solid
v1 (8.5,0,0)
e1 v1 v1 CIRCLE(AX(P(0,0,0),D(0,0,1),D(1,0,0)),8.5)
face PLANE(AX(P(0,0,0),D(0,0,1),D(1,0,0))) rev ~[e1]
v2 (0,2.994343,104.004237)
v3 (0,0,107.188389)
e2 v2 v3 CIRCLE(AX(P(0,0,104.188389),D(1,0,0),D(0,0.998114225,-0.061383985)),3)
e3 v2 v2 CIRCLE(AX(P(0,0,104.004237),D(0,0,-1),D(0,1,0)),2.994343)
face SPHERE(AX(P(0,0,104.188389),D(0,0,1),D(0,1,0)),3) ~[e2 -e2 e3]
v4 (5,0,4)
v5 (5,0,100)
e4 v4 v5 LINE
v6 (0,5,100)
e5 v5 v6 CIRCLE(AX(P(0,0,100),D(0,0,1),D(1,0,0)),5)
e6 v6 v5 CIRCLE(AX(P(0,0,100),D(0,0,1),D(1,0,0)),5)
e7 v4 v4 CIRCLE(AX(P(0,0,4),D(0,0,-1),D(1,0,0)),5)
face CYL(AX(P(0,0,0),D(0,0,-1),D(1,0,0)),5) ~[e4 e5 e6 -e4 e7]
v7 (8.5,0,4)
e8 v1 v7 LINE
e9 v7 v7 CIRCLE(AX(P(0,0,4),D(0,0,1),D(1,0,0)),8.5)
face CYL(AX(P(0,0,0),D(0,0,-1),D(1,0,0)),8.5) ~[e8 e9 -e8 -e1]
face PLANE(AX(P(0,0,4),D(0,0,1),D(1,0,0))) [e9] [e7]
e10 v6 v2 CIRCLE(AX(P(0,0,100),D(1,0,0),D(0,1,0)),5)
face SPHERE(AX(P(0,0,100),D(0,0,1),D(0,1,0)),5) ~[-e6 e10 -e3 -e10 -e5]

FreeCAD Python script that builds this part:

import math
import FreeCAD as App
import Part
import Sketcher
from FreeCAD import Vector
Q = App.Units.Quantity

doc = App.newDocument("Part")
body = doc.addObject("PartDesign::Body", "Body")

# Sketch on XY plane
sketch1 = body.newObject("Sketcher::SketchObject", "Sketch")
sketch1.AttachmentSupport = (doc.getObject("XY_Plane"), [""])
sketch1.MapMode = "FlatFace"
sketch1.addGeometry(Part.Circle(Vector(0, 0, 0), Vector(0, 0, 1), 8.5), False)
sketch1.addConstraint([
    Sketcher.Constraint("Coincident", 0, 3, -1, 1),
    Sketcher.Constraint("Diameter", 0, Q("17 mm")),
])
pad1 = body.newObject("PartDesign::Pad", "Pad")
pad1.Profile = sketch1
pad1.Length = 4

# Sketch on XY plane
sketch2 = body.newObject("Sketcher::SketchObject", "Sketch001")
sketch2.AttachmentSupport = (doc.getObject("XY_Plane"), [""])
sketch2.MapMode = "FlatFace"
sketch2.addGeometry(Part.Circle(Vector(0, 0, 0), Vector(0, 0, 1), 5), False)
sketch2.addConstraint([
    Sketcher.Constraint("Coincident", 0, 3, -1, 1),
    Sketcher.Constraint("Diameter", 0, Q("10 mm")),
])
pad2 = body.newObject("PartDesign::Pad", "Pad001")
pad2.Profile = sketch2
pad2.Length = 100

# Sketch on YZ plane
sketch3 = body.newObject("Sketcher::SketchObject", "Sketch002")
sketch3.AttachmentSupport = (doc.getObject("YZ_Plane"), [""])
sketch3.MapMode = "FlatFace"
sketch3.addGeometry([
    Part.LineSegment(Vector(0, 100, 0), Vector(5, 100, 0)),
    Part.ArcOfCircle(Part.Circle(Vector(0, 100, 0), Vector(0, 0, 1), 5), math.radians(0), math.radians(53.211095)),
    Part.ArcOfCircle(Part.Circle(Vector(0, 104.188389, 0), Vector(0, 0, 1), 3), math.radians(-3.519256), math.radians(90)),
    Part.LineSegment(Vector(0, 107.188389, 0), Vector(0, 100, 0)),
], False)
sketch3.addConstraint([
    Sketcher.Constraint("Coincident", 0, 2, 1, 1),
    Sketcher.Constraint("Coincident", 1, 2, 2, 1),
    Sketcher.Constraint("Coincident", 2, 2, 3, 1),
    Sketcher.Constraint("Coincident", 3, 2, 0, 1),
    Sketcher.Constraint("Horizontal", 0),
    Sketcher.Constraint("Vertical", 3),
    Sketcher.Constraint("Coincident", 3, 2, 1, 3),
    Sketcher.Constraint("PointOnObject", 1, 3, -2),
    Sketcher.Constraint("PointOnObject", 2, 3, -2),
    Sketcher.Constraint("Radius", 1, Q("5 mm")),
    Sketcher.Constraint("Radius", 2, Q("3 mm")),
    Sketcher.Constraint("DistanceY", -1, 1, 1, 3, Q("100 mm")),
    Sketcher.Constraint("DistanceY", 3, 2, 3, 1, Q("7.188389 mm")),
])
revolution = body.newObject("PartDesign::Revolution", "Revolution")
revolution.Profile = sketch3
revolution.ReferenceAxis = (sketch3, ["V_Axis"])
revolution.Angle = 360

doc.recompute()
